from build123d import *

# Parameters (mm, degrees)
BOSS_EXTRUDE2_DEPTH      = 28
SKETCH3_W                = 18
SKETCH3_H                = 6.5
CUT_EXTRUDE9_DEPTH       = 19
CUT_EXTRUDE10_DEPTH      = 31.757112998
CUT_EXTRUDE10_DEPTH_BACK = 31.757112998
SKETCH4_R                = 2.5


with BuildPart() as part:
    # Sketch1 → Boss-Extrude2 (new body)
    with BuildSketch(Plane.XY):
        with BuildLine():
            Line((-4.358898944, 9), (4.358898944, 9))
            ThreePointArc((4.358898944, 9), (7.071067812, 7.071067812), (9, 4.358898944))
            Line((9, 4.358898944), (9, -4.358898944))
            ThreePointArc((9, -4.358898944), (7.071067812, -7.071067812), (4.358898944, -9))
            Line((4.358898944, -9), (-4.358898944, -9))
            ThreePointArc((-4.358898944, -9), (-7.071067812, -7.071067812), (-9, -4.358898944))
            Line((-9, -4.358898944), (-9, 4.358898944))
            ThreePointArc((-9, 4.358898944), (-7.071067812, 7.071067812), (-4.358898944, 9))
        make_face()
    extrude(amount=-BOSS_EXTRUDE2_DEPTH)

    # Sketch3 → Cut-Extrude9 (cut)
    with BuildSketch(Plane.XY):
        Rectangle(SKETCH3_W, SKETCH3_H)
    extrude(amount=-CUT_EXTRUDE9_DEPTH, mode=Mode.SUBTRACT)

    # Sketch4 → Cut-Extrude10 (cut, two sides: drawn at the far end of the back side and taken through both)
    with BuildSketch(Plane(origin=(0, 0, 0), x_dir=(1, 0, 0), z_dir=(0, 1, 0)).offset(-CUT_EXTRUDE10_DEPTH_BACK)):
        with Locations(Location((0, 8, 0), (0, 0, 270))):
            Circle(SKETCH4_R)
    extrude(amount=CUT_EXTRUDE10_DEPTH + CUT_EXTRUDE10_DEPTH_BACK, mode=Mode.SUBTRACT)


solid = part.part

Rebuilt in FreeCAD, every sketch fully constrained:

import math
import FreeCAD as App
import Part
import Sketcher
Q = App.Units.Quantity

doc = App.newDocument("Part")
body = doc.addObject("PartDesign::Body", "Body")

sketch1 = body.newObject("Sketcher::SketchObject", "Sketch")
sketch1.AttachmentSupport = (doc.getObject("XY_Plane"), [""])
sketch1.MapMode = "FlatFace"
sketch1.addGeometry([
    Part.LineSegment(App.Vector(4, 9, 0), App.Vector(-4, 9, 0)),
    Part.ArcOfCircle(Part.Circle(App.Vector(0, 0, 0), App.Vector(0, 0, 1), 10), math.radians(116), math.radians(154)),
    Part.LineSegment(App.Vector(-9, 4, 0), App.Vector(-9, -4, 0)),
    Part.ArcOfCircle(Part.Circle(App.Vector(0, 0, 0), App.Vector(0, 0, 1), 10), math.radians(-154), math.radians(-116)),
    Part.LineSegment(App.Vector(-4, -9, 0), App.Vector(4, -9, 0)),
    Part.ArcOfCircle(Part.Circle(App.Vector(0, 0, 0), App.Vector(0, 0, 1), 10), math.radians(-64), math.radians(-26)),
    Part.LineSegment(App.Vector(9, -4, 0), App.Vector(9, 4, 0)),
    Part.ArcOfCircle(Part.Circle(App.Vector(0, 0, 0), App.Vector(0, 0, 1), 10), math.radians(26), math.radians(64)),
], False)
sketch1.addConstraint([
    Sketcher.Constraint("Coincident", 0, 2, 1, 1),
    Sketcher.Constraint("Coincident", 1, 2, 2, 1),
    Sketcher.Constraint("Coincident", 2, 2, 3, 1),
    Sketcher.Constraint("Coincident", 3, 2, 4, 1),
    Sketcher.Constraint("Coincident", 4, 2, 5, 1),
    Sketcher.Constraint("Coincident", 5, 2, 6, 1),
    Sketcher.Constraint("Coincident", 6, 2, 7, 1),
    Sketcher.Constraint("Coincident", 7, 2, 0, 1),
    Sketcher.Constraint("Horizontal", 0),
    Sketcher.Constraint("Vertical", 2),
    Sketcher.Constraint("Horizontal", 4),
    Sketcher.Constraint("Vertical", 6),
    Sketcher.Constraint("Coincident", 1, 3, -1, 1),
    Sketcher.Constraint("Coincident", 3, 3, -1, 1),
    Sketcher.Constraint("Coincident", 5, 3, -1, 1),
    Sketcher.Constraint("Coincident", 7, 3, -1, 1),
    Sketcher.Constraint("Equal", 1, 3),
    Sketcher.Constraint("Equal", 3, 5),
    Sketcher.Constraint("Equal", 5, 7),
    Sketcher.Constraint("Horizontal", 2, 2, 5, 2),
    Sketcher.Constraint("Vertical", 0, 2, 3, 2),
    Sketcher.Constraint("Equal", 4, 2),
    Sketcher.Constraint("Radius", 1, Q("10 mm")),
    Sketcher.Constraint("DistanceY", -1, 1, 0, 2, Q("9 mm")),
])
pad1 = body.newObject("PartDesign::Pad", "Pad")
pad1.Profile = sketch1
pad1.Length = 28
pad1.Reversed = True

sketch2 = body.newObject("Sketcher::SketchObject", "Sketch001")
sketch2.AttachmentSupport = (doc.getObject("XY_Plane"), [""])
sketch2.MapMode = "FlatFace"
sketch2.addGeometry([
    Part.LineSegment(App.Vector(-9, 3, 0), App.Vector(-9, -3, 0)),
    Part.LineSegment(App.Vector(-9, -3, 0), App.Vector(9, -3, 0)),
    Part.LineSegment(App.Vector(9, -3, 0), App.Vector(9, 3, 0)),
    Part.LineSegment(App.Vector(9, 3, 0), App.Vector(-9, 3, 0)),
], False)
sketch2.addConstraint([
    Sketcher.Constraint("Coincident", 0, 2, 1, 1),
    Sketcher.Constraint("Coincident", 1, 2, 2, 1),
    Sketcher.Constraint("Coincident", 2, 2, 3, 1),
    Sketcher.Constraint("Coincident", 3, 2, 0, 1),
    Sketcher.Constraint("Vertical", 0),
    Sketcher.Constraint("Horizontal", 1),
    Sketcher.Constraint("Vertical", 2),
    Sketcher.Constraint("Horizontal", 3),
    Sketcher.Constraint("Symmetric", 0, 2, 2, 2, -1, 1),
    Sketcher.Constraint("DistanceX", 1, 1, 1, 2, Q("18 mm")),
    Sketcher.Constraint("DistanceY", 0, 2, 0, 1, Q("6.5 mm")),
])
pocket1 = body.newObject("PartDesign::Pocket", "Pocket")
pocket1.Profile = sketch2
pocket1.Length = 19

sketch3 = body.newObject("Sketcher::SketchObject", "Sketch002")
sketch3.AttachmentSupport = (doc.getObject("XZ_Plane"), [""])
sketch3.MapMode = "FlatFace"
sketch3.addGeometry(Part.Circle(App.Vector(0, -8, 0), App.Vector(0, 0, 1), 2.5), False)
sketch3.addConstraint([
    Sketcher.Constraint("PointOnObject", 0, 3, -2),
    Sketcher.Constraint("Diameter", 0, Q("5 mm")),
    Sketcher.Constraint("DistanceY", 0, 3, -1, 1, Q("8 mm")),
])
pocket2 = body.newObject("PartDesign::Pocket", "Pocket001")
pocket2.Profile = sketch3
pocket2.Type = "ThroughAll"
pocket2.Midplane = True

doc.recompute()
